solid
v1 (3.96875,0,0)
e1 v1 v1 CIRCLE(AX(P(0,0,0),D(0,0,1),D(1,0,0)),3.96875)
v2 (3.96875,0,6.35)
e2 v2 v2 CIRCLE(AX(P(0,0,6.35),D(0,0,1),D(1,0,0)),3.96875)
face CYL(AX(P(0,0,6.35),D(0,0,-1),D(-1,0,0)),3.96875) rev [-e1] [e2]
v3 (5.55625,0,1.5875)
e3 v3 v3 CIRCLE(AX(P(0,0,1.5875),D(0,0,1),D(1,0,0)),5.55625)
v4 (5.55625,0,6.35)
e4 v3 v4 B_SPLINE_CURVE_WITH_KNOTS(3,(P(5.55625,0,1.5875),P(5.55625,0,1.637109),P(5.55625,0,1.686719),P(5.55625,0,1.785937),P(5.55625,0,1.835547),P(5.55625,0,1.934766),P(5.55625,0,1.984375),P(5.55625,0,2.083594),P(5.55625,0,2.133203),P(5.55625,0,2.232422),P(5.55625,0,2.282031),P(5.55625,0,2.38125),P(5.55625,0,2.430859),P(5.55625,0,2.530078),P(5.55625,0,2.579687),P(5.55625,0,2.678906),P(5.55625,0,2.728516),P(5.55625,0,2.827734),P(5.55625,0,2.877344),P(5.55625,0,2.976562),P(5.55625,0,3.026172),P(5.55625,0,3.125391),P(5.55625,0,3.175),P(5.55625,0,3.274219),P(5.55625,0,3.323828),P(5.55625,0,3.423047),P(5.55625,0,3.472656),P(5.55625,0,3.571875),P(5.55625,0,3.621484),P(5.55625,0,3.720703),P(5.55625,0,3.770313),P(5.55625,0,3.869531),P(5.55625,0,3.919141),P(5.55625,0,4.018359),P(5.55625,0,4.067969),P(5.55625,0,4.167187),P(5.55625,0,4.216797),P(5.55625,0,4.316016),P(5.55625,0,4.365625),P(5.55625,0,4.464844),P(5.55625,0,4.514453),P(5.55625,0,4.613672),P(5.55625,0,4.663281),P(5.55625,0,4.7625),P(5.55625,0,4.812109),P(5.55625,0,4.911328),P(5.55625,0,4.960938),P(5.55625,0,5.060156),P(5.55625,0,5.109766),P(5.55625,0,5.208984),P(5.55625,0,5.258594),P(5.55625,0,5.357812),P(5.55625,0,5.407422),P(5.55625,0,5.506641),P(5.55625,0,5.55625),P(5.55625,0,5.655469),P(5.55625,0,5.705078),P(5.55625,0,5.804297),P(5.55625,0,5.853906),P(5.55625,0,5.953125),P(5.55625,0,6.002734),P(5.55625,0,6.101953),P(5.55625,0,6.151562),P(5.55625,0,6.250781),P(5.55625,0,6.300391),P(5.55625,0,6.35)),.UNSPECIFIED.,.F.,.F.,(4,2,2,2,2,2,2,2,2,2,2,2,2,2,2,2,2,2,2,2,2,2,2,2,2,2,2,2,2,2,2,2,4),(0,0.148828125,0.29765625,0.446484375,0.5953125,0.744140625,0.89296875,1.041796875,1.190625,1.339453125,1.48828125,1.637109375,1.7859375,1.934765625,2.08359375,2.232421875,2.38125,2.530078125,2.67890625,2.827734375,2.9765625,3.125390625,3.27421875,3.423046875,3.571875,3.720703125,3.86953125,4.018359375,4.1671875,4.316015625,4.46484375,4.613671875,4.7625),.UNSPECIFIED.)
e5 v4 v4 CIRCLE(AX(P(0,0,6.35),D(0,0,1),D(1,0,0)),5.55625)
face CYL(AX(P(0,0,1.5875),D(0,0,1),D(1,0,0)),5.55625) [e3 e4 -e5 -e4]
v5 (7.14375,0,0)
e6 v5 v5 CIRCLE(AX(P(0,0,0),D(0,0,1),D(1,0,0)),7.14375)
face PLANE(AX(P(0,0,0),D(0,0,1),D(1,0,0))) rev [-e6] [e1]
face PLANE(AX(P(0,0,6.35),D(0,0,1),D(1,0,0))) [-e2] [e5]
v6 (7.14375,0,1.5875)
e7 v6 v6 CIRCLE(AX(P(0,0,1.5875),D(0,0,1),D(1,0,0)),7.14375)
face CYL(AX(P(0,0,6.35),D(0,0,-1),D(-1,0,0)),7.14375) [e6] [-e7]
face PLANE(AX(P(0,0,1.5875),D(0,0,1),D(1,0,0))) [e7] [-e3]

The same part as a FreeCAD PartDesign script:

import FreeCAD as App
import Part
import Sketcher

V = App.Vector
Q = App.Units.Quantity

doc = App.newDocument("Part")
body = doc.addObject("PartDesign::Body", "Body")

# Sketch on XY plane
sketch1 = body.newObject("Sketcher::SketchObject", "Sketch")
sketch1.AttachmentSupport = (doc.getObject("XY_Plane"), [""])
sketch1.MapMode = "FlatFace"
sketch1.addGeometry([
    Part.Circle(V(0, 0, 0), V(0, 0, 1), 7.14375),
    Part.Circle(V(0, 0, 0), V(0, 0, 1), 3.96875),
], False)
sketch1.addConstraint([
    Sketcher.Constraint("Coincident", 0, 3, -1, 1),
    Sketcher.Constraint("Coincident", 1, 3, -1, 1),
    Sketcher.Constraint("Diameter", 0, Q("0.5625 in")),
    Sketcher.Constraint("Diameter", 1, Q("0.3125 in")),
])
pad1 = body.newObject("PartDesign::Pad", "Pad")
pad1.Profile = sketch1
pad1.Length = Q("0.25 in")

# Sketch on XY plane
sketch2 = body.newObject("Sketcher::SketchObject", "Sketch001")
sketch2.AttachmentSupport = (doc.getObject("XY_Plane"), [""])
sketch2.MapMode = "FlatFace"
sketch2.AttachmentOffset = App.Placement(V(0, 0, 0.0625 * 25.4), App.Rotation())
sketch2.addGeometry([
    Part.Circle(V(0, 0, 0), V(0, 0, 1), 7.14375),
    Part.Circle(V(0, 0, 0), V(0, 0, 1), 5.55625),
], False)
sketch2.addConstraint([
    Sketcher.Constraint("Coincident", 0, 3, -1, 1),
    Sketcher.Constraint("Coincident", 1, 3, -1, 1),
    Sketcher.Constraint("Diameter", 0, Q("0.5625 in")),
    Sketcher.Constraint("Diameter", 1, Q("0.4375 in")),
])
pocket1 = body.newObject("PartDesign::Pocket", "Pocket")
pocket1.Profile = sketch2
pocket1.Length = Q("0.1875 in")
pocket1.Reversed = True

doc.recompute()
